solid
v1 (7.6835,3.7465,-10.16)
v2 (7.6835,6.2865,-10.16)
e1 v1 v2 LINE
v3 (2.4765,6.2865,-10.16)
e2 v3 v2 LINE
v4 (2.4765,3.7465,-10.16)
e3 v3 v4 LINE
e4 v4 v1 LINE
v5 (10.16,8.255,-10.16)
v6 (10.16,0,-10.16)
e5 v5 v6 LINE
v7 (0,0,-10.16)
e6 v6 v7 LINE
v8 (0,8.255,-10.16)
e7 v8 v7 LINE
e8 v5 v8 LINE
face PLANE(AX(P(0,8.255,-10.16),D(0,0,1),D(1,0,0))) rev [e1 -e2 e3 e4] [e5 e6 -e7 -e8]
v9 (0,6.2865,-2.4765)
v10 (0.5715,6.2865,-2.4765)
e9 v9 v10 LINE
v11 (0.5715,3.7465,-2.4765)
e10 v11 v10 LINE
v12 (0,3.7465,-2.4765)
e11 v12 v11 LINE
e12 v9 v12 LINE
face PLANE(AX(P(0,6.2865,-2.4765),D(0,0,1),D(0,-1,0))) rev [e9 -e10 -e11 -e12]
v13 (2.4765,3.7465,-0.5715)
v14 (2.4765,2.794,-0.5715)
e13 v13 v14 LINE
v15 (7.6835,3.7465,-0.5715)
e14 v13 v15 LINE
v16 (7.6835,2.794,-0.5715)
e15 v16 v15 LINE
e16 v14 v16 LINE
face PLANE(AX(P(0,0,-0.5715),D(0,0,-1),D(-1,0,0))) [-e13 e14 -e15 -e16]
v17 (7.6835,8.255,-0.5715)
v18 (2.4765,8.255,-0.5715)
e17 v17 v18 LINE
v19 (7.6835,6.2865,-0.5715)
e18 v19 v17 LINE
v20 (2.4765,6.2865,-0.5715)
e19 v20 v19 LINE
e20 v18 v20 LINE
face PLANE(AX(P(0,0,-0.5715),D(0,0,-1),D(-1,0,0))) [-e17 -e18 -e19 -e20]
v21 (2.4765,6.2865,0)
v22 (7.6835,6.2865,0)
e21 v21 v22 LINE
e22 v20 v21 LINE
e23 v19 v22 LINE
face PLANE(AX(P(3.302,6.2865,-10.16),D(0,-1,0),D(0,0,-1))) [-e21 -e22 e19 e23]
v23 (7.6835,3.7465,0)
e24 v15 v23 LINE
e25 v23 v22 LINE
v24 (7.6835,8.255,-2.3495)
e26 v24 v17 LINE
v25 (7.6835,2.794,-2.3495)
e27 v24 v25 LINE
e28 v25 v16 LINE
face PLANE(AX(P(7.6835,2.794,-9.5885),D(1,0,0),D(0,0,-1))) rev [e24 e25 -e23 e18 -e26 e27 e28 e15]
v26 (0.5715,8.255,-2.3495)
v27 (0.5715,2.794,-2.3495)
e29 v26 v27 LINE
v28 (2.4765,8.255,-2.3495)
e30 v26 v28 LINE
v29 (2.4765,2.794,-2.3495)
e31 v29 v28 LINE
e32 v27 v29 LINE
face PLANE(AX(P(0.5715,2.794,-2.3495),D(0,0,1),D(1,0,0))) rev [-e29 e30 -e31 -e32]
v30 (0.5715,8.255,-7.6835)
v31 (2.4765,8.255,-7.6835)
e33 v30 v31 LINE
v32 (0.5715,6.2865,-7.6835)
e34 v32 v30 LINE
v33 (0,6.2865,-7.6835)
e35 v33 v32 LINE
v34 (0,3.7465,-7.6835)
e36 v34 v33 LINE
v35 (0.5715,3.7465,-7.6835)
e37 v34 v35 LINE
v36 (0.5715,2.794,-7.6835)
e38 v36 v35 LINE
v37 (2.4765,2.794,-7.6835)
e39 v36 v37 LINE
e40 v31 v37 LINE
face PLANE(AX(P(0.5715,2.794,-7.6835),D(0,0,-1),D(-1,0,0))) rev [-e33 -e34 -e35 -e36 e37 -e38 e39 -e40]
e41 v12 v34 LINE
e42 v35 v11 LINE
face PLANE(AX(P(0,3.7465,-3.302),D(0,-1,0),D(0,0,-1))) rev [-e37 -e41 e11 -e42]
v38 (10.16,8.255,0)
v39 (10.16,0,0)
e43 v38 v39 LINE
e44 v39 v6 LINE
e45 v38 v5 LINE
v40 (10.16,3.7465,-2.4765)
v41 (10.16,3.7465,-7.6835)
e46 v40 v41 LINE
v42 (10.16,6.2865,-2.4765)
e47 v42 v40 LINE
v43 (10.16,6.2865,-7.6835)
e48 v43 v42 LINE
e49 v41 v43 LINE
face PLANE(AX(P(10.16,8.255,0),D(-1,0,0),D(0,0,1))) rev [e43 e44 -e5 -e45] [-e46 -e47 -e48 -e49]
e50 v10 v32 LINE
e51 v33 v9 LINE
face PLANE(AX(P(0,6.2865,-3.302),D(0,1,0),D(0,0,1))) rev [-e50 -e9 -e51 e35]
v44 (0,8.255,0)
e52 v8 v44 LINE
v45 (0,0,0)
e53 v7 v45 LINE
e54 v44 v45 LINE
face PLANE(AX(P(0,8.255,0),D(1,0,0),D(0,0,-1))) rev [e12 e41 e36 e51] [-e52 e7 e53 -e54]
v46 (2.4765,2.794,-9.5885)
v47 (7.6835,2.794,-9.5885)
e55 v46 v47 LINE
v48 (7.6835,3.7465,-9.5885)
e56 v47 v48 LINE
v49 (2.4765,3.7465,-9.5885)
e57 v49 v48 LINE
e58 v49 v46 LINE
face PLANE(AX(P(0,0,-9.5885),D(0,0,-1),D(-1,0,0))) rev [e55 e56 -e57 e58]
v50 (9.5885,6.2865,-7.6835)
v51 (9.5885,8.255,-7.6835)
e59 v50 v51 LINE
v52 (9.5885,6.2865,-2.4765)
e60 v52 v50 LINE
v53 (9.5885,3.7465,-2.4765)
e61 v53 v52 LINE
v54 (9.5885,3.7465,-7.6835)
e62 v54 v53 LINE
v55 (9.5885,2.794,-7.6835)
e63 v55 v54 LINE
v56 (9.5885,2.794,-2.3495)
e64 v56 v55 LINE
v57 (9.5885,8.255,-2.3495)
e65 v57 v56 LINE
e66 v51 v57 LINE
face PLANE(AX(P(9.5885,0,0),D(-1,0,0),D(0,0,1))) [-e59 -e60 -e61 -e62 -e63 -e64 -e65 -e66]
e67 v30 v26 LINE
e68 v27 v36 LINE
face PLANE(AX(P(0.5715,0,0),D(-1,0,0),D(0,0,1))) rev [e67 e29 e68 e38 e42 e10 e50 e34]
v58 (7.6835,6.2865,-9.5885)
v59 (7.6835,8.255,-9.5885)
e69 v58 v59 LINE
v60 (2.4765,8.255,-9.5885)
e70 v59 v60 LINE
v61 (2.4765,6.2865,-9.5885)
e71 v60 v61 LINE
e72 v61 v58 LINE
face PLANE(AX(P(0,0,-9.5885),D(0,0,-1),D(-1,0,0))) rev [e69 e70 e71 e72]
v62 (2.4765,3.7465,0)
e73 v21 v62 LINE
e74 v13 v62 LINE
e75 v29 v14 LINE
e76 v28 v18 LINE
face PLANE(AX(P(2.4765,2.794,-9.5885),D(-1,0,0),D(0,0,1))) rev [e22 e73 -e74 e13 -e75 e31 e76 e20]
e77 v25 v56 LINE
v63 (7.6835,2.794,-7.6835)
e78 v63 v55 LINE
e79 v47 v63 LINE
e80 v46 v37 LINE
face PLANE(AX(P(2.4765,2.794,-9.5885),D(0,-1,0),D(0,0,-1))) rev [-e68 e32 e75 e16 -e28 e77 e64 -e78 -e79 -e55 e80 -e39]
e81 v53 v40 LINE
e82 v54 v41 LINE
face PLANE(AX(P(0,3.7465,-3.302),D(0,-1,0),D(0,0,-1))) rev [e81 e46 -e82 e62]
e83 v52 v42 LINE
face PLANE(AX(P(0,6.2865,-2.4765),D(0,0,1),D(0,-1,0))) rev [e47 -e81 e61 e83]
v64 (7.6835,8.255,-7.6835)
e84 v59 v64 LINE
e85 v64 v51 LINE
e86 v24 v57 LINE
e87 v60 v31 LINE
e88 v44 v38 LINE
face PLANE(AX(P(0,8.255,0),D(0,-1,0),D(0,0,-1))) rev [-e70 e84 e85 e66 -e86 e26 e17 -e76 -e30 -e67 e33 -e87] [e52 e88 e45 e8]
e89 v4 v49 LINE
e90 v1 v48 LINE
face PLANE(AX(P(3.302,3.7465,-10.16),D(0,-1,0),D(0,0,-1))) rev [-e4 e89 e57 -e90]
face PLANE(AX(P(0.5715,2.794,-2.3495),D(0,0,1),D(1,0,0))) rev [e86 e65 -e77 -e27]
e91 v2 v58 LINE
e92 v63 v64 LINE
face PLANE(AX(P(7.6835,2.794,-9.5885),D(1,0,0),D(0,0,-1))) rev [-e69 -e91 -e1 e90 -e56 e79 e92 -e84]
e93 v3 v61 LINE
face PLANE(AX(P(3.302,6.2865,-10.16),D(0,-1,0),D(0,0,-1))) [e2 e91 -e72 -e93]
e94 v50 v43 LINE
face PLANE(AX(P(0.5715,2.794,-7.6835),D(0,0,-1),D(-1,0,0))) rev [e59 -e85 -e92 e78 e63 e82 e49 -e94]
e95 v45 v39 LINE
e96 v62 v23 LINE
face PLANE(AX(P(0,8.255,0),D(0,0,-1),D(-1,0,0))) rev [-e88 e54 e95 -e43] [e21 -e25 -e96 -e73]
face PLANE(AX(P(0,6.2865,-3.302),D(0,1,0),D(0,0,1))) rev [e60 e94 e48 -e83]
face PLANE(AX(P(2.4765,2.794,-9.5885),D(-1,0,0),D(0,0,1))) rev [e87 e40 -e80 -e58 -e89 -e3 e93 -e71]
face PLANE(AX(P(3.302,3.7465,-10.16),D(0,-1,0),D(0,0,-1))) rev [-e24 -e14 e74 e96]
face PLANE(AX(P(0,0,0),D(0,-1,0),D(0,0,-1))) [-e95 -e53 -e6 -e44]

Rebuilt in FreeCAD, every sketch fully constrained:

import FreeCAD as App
import Part
import Sketcher

V = App.Vector
Q = App.Units.Quantity


def add_polygon(sketch, points):
    """Adds a closed chain of lines whose ends are joined by coincident constraints."""
    first, n = sketch.GeometryCount, len(points)
    for a, b in zip(points, points[1:] + points[:1]):
        sketch.addGeometry(Part.LineSegment(App.Vector(*a, 0), App.Vector(*b, 0)), False)
    for i in range(n):
        sketch.addConstraint(Sketcher.Constraint("Coincident", first + i, 2, first + (i + 1) % n, 1))

doc = App.newDocument("Part")
body = doc.addObject("PartDesign::Body", "Body")

# Sketch on XZ plane
sketch1 = body.newObject("Sketcher::SketchObject", "Sketch")
sketch1.AttachmentSupport = (doc.getObject("XZ_Plane"), [""])
sketch1.MapMode = "FlatFace"
add_polygon(sketch1, [(0, -10.16), (0, 0), (10.16, 0), (10.16, -10.16)])  # lines 0-3
sketch1.addConstraint(Sketcher.Constraint("Vertical", 0))
sketch1.addConstraint(Sketcher.Constraint("Horizontal", 1))
sketch1.addConstraint(Sketcher.Constraint("Vertical", 2))
sketch1.addConstraint(Sketcher.Constraint("Horizontal", 3))
sketch1.addConstraint(Sketcher.Constraint("Coincident", 0, 2, -1, 1))
sketch1.addConstraint(Sketcher.Constraint("Equal", 3, 0))
sketch1.addConstraint(Sketcher.Constraint("DistanceX", 1, 1, 1, 2, Q("0.4 in")))
pad1 = body.newObject("PartDesign::Pad", "Pad")
pad1.Profile = sketch1
pad1.Length = Q("0.325 in")
pad1.Reversed = True

# Sketch on XY plane
sketch2 = body.newObject("Sketcher::SketchObject", "Sketch001")
sketch2.AttachmentSupport = (doc.getObject("XY_Plane"), [""])
sketch2.MapMode = "FlatFace"
add_polygon(sketch2, [(3.302, 6.2865), (3.302, 3.7465), (6.858, 3.7465), (6.858, 6.2865)])  # lines 0-3
sketch2.addConstraint(Sketcher.Constraint("Vertical", 0))
sketch2.addConstraint(Sketcher.Constraint("Horizontal", 1))
sketch2.addConstraint(Sketcher.Constraint("Vertical", 2))
sketch2.addConstraint(Sketcher.Constraint("Horizontal", 3))
sketch2.addConstraint(Sketcher.Constraint("DistanceY", 0, 2, 0, 1, Q("0.1 in")))
sketch2.addConstraint(Sketcher.Constraint("DistanceX", 1, 1, 1, 2, Q("0.14 in")))
sketch2.addConstraint(Sketcher.Constraint("DistanceX", -1, 1, 0, 2, Q("0.13 in")))
sketch2.addConstraint(Sketcher.Constraint("DistanceY", -1, 1, 0, 2, Q("0.1475 in")))
pocket1 = body.newObject("PartDesign::Pocket", "Pocket")
pocket1.Profile = sketch2
pocket1.Length = Q("0.4 in")

# Sketch on XY plane
sketch3 = body.newObject("Sketcher::SketchObject", "Sketch002")
sketch3.AttachmentSupport = (doc.getObject("XY_Plane"), [""])
sketch3.MapMode = "FlatFace"
sketch3.AttachmentOffset = App.Placement(V(0, 0, -0.0225 * 25.4), App.Rotation())
add_polygon(sketch3, [(2.4765, 8.255), (2.4765, 2.794), (7.6835, 2.794), (7.6835, 8.255)])  # lines 0-3
sketch3.addConstraint(Sketcher.Constraint("Vertical", 0))
sketch3.addConstraint(Sketcher.Constraint("Horizontal", 1))
sketch3.addConstraint(Sketcher.Constraint("Vertical", 2))
sketch3.addConstraint(Sketcher.Constraint("Horizontal", 3))
sketch3.addConstraint(Sketcher.Constraint("DistanceX", 1, 1, 1, 2, Q("0.205 in")))
sketch3.addConstraint(Sketcher.Constraint("DistanceY", 0, 2, 0, 1, Q("0.215 in")))
sketch3.addConstraint(Sketcher.Constraint("DistanceY", -1, 1, 0, 2, Q("0.11 in")))
sketch3.addConstraint(Sketcher.Constraint("DistanceX", -1, 1, 0, 2, Q("0.0975 in")))
pocket2 = body.newObject("PartDesign::Pocket", "Pocket001")
pocket2.Profile = sketch3
pocket2.Length = Q("0.355 in")

# Sketch on YZ plane
sketch4 = body.newObject("Sketcher::SketchObject", "Sketch003")
sketch4.AttachmentSupport = (doc.getObject("YZ_Plane"), [""])
sketch4.MapMode = "FlatFace"
sketch4.AttachmentOffset = App.Placement(V(0, 0, 0.3775 * 25.4), App.Rotation())
add_polygon(sketch4, [(8.255, -2.3495), (2.794, -2.3495), (2.794, -7.6835), (8.255, -7.6835)])  # lines 0-3
sketch4.addConstraint(Sketcher.Constraint("Horizontal", 0))
sketch4.addConstraint(Sketcher.Constraint("Vertical", 1))
sketch4.addConstraint(Sketcher.Constraint("Horizontal", 2))
sketch4.addConstraint(Sketcher.Constraint("Vertical", 3))
sketch4.addConstraint(Sketcher.Constraint("DistanceY", 1, 2, 1, 1, Q("0.21 in")))
sketch4.addConstraint(Sketcher.Constraint("DistanceX", 0, 2, 0, 1, Q("0.215 in")))
sketch4.addConstraint(Sketcher.Constraint("DistanceX", -1, 1, 0, 2, Q("0.11 in")))
sketch4.addConstraint(Sketcher.Constraint("DistanceY", 0, 2, -1, 1, Q("0.0925 in")))
pocket3 = body.newObject("PartDesign::Pocket", "Pocket002")
pocket3.Profile = sketch4
pocket3.Length = Q("0.355 in")

# Sketch on YZ plane
sketch5 = body.newObject("Sketcher::SketchObject", "Sketch004")
sketch5.AttachmentSupport = (doc.getObject("YZ_Plane"), [""])
sketch5.MapMode = "FlatFace"
sketch5.AttachmentOffset = App.Placement(V(0, 0, 0.4 * 25.4), App.Rotation())
add_polygon(sketch5, [(6.2865, -3.302), (3.7465, -3.302), (3.7465, -6.858), (6.2865, -6.858)])  # lines 0-3
sketch5.addConstraint(Sketcher.Constraint("Horizontal", 0))
sketch5.addConstraint(Sketcher.Constraint("Vertical", 1))
sketch5.addConstraint(Sketcher.Constraint("Horizontal", 2))
sketch5.addConstraint(Sketcher.Constraint("Vertical", 3))
sketch5.addConstraint(Sketcher.Constraint("DistanceX", 0, 2, 0, 1, Q("0.1 in")))
sketch5.addConstraint(Sketcher.Constraint("DistanceY", 1, 2, 1, 1, Q("0.14 in")))
sketch5.addConstraint(Sketcher.Constraint("DistanceY", 0, 2, -1, 1, Q("0.13 in")))
sketch5.addConstraint(Sketcher.Constraint("DistanceX", -1, 1, 0, 2, Q("0.1475 in")))
pocket4 = body.newObject("PartDesign::Pocket", "Pocket003")
pocket4.Profile = sketch5
pocket4.Length = Q("0.4 in")

# Sketch on XY plane
sketch6 = body.newObject("Sketcher::SketchObject", "Sketch005")
sketch6.AttachmentSupport = (doc.getObject("XY_Plane"), [""])
sketch6.MapMode = "FlatFace"
add_polygon(sketch6, [(2.4765, 6.2865), (2.4765, 3.7465), (7.6835, 3.7465), (7.6835, 6.2865)])  # lines 0-3
sketch6.addConstraint(Sketcher.Constraint("Vertical", 0))
sketch6.addConstraint(Sketcher.Constraint("Horizontal", 1))
sketch6.addConstraint(Sketcher.Constraint("Vertical", 2))
sketch6.addConstraint(Sketcher.Constraint("Horizontal", 3))
sketch6.addConstraint(Sketcher.Constraint("DistanceY", 0, 2, 0, 1, Q("0.1 in")))
sketch6.addConstraint(Sketcher.Constraint("DistanceX", 1, 1, 1, 2, Q("0.205 in")))
sketch6.addConstraint(Sketcher.Constraint("DistanceX", -1, 1, 0, 2, Q("0.0975 in")))
sketch6.addConstraint(Sketcher.Constraint("DistanceY", -1, 1, 0, 2, Q("0.1475 in")))
pocket5 = body.newObject("PartDesign::Pocket", "Pocket004")
pocket5.Profile = sketch6
pocket5.Length = Q("0.4 in")

# Sketch on YZ plane
sketch7 = body.newObject("Sketcher::SketchObject", "Sketch006")
sketch7.AttachmentSupport = (doc.getObject("YZ_Plane"), [""])
sketch7.MapMode = "FlatFace"
sketch7.AttachmentOffset = App.Placement(V(0, 0, 0.4 * 25.4), App.Rotation())
add_polygon(sketch7, [(6.2865, -2.4765), (3.7465, -2.4765), (3.7465, -7.6835), (6.2865, -7.6835)])  # lines 0-3
sketch7.addConstraint(Sketcher.Constraint("Horizontal", 0))
sketch7.addConstraint(Sketcher.Constraint("Vertical", 1))
sketch7.addConstraint(Sketcher.Constraint("Horizontal", 2))
sketch7.addConstraint(Sketcher.Constraint("Vertical", 3))
sketch7.addConstraint(Sketcher.Constraint("DistanceX", 0, 2, 0, 1, Q("0.1 in")))
sketch7.addConstraint(Sketcher.Constraint("DistanceY", 1, 2, 1, 1, Q("0.205 in")))
sketch7.addConstraint(Sketcher.Constraint("DistanceX", -1, 1, 0, 2, Q("0.1475 in")))
sketch7.addConstraint(Sketcher.Constraint("DistanceY", 0, 2, -1, 1, Q("0.0975 in")))
pocket6 = body.newObject("PartDesign::Pocket", "Pocket005")
pocket6.Profile = sketch7
pocket6.Length = Q("0.4 in")

doc.recompute()
